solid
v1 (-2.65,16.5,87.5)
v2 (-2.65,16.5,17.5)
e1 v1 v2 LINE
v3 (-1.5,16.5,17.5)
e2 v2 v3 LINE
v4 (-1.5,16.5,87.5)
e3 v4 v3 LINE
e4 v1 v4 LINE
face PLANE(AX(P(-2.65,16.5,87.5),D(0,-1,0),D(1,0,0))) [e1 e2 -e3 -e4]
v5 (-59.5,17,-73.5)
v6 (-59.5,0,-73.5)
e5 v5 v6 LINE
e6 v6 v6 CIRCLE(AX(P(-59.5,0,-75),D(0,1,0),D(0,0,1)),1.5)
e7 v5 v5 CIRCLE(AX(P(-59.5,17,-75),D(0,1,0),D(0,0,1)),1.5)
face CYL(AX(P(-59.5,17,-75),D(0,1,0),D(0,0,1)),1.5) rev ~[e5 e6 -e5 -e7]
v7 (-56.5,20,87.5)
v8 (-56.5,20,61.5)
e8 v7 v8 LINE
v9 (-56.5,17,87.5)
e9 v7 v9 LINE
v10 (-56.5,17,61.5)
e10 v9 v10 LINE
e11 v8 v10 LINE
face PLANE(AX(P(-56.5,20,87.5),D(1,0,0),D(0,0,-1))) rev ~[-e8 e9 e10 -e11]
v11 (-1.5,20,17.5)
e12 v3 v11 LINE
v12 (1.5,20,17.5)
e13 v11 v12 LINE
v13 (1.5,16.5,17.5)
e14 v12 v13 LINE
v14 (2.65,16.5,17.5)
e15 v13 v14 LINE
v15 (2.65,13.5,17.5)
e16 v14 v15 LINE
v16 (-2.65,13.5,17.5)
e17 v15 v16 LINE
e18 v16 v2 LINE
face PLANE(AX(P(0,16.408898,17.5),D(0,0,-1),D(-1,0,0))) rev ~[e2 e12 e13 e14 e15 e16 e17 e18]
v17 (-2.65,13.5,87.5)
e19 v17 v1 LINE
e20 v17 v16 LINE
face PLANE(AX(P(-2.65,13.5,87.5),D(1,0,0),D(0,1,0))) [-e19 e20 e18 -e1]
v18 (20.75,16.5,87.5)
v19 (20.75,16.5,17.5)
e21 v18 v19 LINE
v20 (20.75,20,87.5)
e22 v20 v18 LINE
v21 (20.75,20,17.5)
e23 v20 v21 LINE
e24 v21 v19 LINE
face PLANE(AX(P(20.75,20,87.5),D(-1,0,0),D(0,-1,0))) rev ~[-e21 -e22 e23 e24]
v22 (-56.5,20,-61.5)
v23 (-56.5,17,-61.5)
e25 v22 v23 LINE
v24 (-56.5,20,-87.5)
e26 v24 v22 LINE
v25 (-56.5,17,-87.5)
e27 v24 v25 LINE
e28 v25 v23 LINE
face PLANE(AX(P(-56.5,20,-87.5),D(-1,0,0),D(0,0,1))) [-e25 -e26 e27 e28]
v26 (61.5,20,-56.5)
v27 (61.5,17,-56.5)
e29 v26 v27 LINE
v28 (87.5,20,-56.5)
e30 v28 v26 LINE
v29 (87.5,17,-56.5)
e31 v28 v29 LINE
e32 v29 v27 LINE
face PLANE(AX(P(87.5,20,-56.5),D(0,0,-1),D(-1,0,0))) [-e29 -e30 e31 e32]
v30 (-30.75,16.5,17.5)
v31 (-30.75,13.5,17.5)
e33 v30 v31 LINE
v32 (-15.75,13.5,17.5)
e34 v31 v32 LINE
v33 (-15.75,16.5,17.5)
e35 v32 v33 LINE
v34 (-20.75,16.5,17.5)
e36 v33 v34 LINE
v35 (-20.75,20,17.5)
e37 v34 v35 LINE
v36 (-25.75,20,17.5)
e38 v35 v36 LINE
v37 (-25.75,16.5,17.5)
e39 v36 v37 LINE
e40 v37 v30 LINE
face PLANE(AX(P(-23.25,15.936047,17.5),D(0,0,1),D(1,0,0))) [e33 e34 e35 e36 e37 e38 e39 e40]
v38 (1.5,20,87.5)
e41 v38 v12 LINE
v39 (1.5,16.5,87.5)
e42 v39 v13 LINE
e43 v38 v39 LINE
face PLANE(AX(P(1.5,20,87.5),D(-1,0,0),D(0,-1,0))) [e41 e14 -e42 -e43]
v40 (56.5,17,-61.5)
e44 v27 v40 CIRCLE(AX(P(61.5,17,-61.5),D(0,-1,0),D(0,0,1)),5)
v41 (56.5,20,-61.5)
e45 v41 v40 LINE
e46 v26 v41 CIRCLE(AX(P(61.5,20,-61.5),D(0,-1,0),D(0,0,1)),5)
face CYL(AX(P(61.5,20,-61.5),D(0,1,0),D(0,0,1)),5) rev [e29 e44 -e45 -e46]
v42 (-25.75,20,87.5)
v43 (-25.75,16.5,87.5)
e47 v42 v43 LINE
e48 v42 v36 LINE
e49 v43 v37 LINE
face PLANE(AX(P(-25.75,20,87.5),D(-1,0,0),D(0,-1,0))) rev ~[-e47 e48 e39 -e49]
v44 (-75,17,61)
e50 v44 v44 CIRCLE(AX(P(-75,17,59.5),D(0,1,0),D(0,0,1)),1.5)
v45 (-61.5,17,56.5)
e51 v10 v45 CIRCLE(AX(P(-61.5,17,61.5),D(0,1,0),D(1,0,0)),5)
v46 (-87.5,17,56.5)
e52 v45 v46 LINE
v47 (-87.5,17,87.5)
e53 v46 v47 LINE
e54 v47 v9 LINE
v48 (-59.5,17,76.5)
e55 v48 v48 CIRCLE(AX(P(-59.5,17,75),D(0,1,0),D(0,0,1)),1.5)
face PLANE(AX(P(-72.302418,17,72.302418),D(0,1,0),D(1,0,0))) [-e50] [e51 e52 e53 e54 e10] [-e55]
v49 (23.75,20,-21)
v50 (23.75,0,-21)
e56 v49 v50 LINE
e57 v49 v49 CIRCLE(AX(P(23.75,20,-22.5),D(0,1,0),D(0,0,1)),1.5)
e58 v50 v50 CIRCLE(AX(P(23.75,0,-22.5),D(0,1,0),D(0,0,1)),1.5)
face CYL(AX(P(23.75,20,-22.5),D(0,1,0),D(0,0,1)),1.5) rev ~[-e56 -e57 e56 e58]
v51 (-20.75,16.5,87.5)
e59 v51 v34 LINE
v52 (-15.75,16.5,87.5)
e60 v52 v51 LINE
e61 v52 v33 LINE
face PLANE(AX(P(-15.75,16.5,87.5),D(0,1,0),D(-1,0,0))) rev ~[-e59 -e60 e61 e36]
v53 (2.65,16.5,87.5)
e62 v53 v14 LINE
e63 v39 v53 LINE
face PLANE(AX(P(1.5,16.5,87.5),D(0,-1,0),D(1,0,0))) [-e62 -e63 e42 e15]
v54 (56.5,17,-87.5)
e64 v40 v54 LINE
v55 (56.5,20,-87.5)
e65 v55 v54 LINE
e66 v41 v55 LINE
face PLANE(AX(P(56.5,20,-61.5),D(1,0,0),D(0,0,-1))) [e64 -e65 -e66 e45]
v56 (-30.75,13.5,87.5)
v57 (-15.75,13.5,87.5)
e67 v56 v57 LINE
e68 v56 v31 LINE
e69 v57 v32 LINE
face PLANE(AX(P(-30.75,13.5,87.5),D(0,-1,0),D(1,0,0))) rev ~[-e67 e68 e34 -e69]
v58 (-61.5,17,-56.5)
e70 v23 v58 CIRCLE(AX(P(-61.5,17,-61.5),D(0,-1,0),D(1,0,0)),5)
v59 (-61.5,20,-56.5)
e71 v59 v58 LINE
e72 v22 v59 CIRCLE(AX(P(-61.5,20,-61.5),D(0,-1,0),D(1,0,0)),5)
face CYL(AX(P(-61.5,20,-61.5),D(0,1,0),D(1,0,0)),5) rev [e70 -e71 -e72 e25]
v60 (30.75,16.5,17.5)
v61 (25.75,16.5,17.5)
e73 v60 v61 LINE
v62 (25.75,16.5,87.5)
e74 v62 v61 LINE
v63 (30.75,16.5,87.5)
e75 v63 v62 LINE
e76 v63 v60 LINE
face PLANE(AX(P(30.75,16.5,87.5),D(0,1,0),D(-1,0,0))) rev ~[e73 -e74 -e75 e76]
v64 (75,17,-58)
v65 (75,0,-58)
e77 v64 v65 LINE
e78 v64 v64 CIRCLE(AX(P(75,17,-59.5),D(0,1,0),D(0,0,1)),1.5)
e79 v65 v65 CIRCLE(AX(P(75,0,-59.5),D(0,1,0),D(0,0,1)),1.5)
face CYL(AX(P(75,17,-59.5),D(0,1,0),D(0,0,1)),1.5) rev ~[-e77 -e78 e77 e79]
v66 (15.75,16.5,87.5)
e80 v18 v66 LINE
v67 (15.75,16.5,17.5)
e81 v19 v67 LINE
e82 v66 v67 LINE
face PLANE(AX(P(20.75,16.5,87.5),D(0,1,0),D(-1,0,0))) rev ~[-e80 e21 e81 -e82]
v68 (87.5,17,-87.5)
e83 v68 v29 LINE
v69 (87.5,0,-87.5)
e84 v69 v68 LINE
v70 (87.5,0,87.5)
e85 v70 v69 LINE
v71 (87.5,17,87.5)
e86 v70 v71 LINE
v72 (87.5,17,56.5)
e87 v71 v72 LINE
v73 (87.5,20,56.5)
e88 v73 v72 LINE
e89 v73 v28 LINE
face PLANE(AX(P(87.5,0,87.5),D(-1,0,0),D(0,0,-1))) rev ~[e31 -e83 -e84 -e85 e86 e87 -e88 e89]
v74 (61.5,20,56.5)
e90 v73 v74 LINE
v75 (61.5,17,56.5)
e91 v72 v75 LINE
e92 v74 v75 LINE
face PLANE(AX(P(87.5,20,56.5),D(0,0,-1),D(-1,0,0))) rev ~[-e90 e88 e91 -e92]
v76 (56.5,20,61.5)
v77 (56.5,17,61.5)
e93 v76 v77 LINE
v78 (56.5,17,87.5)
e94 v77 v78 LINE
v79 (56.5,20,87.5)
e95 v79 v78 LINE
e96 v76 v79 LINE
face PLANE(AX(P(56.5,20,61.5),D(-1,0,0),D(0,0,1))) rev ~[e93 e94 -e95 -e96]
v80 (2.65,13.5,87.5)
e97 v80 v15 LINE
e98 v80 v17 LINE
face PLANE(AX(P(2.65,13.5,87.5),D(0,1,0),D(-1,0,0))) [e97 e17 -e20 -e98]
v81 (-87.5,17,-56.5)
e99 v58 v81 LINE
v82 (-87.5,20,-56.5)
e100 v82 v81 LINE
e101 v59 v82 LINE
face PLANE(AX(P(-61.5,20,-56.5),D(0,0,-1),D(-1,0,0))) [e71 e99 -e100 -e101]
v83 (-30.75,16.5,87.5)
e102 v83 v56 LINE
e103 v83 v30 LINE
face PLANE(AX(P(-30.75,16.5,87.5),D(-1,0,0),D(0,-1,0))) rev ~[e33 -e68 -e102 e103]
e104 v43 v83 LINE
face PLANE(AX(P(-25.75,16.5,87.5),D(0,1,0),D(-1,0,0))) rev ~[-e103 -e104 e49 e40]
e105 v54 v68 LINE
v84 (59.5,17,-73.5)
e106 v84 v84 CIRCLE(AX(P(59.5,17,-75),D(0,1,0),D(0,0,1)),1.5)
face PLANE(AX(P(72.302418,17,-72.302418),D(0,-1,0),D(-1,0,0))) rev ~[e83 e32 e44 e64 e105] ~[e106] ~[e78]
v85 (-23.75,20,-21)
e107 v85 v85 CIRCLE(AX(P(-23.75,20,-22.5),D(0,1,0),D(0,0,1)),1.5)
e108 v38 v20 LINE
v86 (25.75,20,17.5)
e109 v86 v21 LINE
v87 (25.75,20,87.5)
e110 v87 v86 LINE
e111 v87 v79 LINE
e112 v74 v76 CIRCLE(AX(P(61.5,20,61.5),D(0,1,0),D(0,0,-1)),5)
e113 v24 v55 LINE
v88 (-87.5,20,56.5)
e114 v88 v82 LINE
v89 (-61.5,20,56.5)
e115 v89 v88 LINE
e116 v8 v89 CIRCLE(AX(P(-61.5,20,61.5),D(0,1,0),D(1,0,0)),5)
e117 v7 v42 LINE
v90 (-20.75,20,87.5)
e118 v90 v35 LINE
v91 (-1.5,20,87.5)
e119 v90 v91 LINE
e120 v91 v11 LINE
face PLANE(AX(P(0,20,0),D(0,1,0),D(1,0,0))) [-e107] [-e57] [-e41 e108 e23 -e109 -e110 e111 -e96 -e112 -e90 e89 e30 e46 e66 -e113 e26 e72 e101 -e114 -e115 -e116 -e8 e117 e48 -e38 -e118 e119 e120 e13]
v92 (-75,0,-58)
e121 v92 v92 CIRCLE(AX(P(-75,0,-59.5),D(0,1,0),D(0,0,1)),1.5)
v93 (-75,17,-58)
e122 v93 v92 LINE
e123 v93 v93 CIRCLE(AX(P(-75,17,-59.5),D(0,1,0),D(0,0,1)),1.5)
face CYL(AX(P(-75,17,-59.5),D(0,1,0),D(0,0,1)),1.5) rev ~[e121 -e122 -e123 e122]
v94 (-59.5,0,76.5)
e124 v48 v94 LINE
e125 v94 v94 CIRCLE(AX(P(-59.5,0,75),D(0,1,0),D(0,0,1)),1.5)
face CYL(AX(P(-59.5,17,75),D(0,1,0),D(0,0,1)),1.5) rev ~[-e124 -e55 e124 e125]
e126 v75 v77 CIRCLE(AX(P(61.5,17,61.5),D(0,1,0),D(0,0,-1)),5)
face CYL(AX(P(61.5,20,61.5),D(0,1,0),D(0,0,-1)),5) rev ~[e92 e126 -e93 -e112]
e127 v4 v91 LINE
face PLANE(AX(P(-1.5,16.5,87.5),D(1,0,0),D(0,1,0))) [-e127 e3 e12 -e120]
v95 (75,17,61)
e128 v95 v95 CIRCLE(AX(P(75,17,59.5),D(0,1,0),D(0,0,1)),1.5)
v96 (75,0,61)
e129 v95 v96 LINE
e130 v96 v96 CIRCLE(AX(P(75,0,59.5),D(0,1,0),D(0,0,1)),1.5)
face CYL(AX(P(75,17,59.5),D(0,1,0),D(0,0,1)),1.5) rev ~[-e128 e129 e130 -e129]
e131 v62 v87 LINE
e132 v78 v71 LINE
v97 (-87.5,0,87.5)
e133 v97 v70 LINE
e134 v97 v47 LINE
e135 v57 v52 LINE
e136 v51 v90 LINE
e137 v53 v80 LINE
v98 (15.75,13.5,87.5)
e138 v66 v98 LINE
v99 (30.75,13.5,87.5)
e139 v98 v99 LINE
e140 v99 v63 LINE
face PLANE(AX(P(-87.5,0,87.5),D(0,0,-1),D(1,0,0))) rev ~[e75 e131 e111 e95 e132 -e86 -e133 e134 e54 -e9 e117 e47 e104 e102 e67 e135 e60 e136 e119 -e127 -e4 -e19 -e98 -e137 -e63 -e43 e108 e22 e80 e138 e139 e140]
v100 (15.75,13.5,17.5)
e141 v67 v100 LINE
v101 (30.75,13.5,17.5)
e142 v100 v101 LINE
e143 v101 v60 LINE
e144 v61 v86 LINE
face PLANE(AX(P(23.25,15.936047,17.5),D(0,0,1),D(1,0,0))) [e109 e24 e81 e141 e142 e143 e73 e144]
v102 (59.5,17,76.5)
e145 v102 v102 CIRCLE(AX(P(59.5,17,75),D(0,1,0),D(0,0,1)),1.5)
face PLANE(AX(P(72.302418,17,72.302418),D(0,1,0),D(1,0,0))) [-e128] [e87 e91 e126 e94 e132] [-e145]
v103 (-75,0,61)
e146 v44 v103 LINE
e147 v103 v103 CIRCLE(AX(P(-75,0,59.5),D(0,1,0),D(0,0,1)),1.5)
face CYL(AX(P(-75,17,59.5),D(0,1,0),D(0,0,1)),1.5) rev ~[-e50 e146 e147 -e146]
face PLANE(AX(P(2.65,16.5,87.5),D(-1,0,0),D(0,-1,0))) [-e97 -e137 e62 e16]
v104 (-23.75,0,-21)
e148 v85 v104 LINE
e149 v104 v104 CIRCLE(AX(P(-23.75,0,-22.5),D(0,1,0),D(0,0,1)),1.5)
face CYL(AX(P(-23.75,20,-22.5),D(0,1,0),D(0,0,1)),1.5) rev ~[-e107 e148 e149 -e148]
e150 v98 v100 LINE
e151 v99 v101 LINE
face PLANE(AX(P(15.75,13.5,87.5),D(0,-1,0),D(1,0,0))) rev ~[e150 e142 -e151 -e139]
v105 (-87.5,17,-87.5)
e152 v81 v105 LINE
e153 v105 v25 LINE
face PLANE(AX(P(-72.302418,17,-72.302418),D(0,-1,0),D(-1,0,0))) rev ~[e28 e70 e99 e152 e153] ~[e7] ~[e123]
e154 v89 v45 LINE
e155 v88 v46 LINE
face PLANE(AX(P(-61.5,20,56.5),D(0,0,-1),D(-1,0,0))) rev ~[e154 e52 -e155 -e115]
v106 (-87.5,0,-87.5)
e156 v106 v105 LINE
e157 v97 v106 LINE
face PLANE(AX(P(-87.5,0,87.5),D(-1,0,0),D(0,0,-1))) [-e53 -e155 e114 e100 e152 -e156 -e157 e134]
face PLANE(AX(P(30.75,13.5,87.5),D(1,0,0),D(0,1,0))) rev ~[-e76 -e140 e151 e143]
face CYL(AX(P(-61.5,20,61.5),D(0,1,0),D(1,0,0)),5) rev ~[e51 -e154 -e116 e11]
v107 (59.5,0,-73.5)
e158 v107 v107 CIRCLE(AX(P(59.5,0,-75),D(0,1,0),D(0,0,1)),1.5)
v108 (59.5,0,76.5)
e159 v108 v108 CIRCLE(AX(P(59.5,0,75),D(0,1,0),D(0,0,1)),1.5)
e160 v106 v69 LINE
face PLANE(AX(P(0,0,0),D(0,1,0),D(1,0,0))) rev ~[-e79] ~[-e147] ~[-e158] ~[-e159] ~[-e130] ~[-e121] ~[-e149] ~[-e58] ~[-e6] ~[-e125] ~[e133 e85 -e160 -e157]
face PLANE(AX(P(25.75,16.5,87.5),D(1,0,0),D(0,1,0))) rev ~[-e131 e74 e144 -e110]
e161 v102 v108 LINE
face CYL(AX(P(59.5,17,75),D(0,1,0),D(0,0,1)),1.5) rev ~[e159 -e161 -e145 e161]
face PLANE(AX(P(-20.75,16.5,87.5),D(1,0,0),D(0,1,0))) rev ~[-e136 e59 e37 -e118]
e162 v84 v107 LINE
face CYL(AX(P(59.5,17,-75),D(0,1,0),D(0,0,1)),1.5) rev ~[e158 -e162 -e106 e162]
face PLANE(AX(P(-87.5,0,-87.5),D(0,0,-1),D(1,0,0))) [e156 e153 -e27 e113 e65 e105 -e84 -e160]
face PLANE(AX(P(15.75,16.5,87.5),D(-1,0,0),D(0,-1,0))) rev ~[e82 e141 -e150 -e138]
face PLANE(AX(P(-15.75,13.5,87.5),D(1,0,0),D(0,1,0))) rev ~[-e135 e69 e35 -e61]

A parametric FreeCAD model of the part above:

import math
import FreeCAD as App
import Part
import Sketcher

V = App.Vector

doc = App.newDocument("Part")
body = doc.addObject("PartDesign::Body", "Body")

# Sketch on XZ plane
sketch1 = doc.addObject("Sketcher::SketchObject", "Sketch")
body.addObject(sketch1)
sketch1.AttachmentSupport = (doc.XZ_Plane, [""])
sketch1.MapMode = "FlatFace"
sketch1.addGeometry(Part.LineSegment(V(-87.5, -87.5, 0), V(-87.5, 87.5, 0)), False)
sketch1.addGeometry(Part.LineSegment(V(-87.5, 87.5, 0), V(87.5, 87.5, 0)), False)
sketch1.addGeometry(Part.LineSegment(V(87.5, 87.5, 0), V(87.5, -87.5, 0)), False)
sketch1.addGeometry(Part.LineSegment(V(87.5, -87.5, 0), V(-87.5, -87.5, 0)), False)
sketch1.addConstraint(Sketcher.Constraint("Coincident", 0, 2, 1, 1))
sketch1.addConstraint(Sketcher.Constraint("Coincident", 1, 2, 2, 1))
sketch1.addConstraint(Sketcher.Constraint("Coincident", 2, 2, 3, 1))
sketch1.addConstraint(Sketcher.Constraint("Coincident", 3, 2, 0, 1))
sketch1.addConstraint(Sketcher.Constraint("Vertical", 0))
sketch1.addConstraint(Sketcher.Constraint("Horizontal", 1))
sketch1.addConstraint(Sketcher.Constraint("Vertical", 2))
sketch1.addConstraint(Sketcher.Constraint("Horizontal", 3))
sketch1.addConstraint(Sketcher.Constraint("Symmetric", 0, 2, 2, 2, -1, 1))
sketch1.addConstraint(Sketcher.Constraint("Equal", 3, 0))
sketch1.addConstraint(Sketcher.Constraint("DistanceX", 1, 1, 1, 2, 175.0))
pad1 = doc.addObject("PartDesign::Pad", "Pad")
body.addObject(pad1)
pad1.Profile = sketch1
pad1.Length = 20
pad1.Reversed = True

# Sketch on XZ plane
sketch2 = doc.addObject("Sketcher::SketchObject", "Sketch001")
body.addObject(sketch2)
sketch2.AttachmentSupport = (doc.XZ_Plane, [""])
sketch2.MapMode = "FlatFace"
sketch2.AttachmentOffset = App.Placement(V(0, 0, -20), App.Rotation())
sketch2.addGeometry(Part.LineSegment(V(-56.5, -87.5, 0), V(-87.5, -87.5, 0)), False)
sketch2.addGeometry(Part.LineSegment(V(-87.5, -87.5, 0), V(-87.5, -56.5, 0)), False)
sketch2.addGeometry(Part.LineSegment(V(-87.5, -56.5, 0), V(-61.5, -56.5, 0)), False)
sketch2.addGeometry(Part.ArcOfCircle(Part.Circle(V(-61.5, -61.5, 0), V(0, 0, 1), 5), math.radians(0), math.radians(90)), False)
sketch2.addGeometry(Part.LineSegment(V(-56.5, -61.5, 0), V(-56.5, -87.5, 0)), False)
sketch2.addGeometry(Part.LineSegment(V(61.5, -56.5, 0), V(87.5, -56.5, 0)), False)
sketch2.addGeometry(Part.LineSegment(V(87.5, -56.5, 0), V(87.5, -87.5, 0)), False)
sketch2.addGeometry(Part.LineSegment(V(87.5, -87.5, 0), V(56.5, -87.5, 0)), False)
sketch2.addGeometry(Part.LineSegment(V(56.5, -87.5, 0), V(56.5, -61.5, 0)), False)
sketch2.addGeometry(Part.ArcOfCircle(Part.Circle(V(61.5, -61.5, 0), V(0, 0, 1), 5), math.radians(90), math.radians(180)), False)
sketch2.addGeometry(Part.LineSegment(V(87.5, 87.5, 0), V(87.5, 56.5, 0)), False)
sketch2.addGeometry(Part.LineSegment(V(87.5, 56.5, 0), V(61.5, 56.5, 0)), False)
sketch2.addGeometry(Part.ArcOfCircle(Part.Circle(V(61.5, 61.5, 0), V(0, 0, 1), 5), math.radians(180), math.radians(270)), False)
sketch2.addGeometry(Part.LineSegment(V(56.5, 61.5, 0), V(56.5, 87.5, 0)), False)
sketch2.addGeometry(Part.LineSegment(V(56.5, 87.5, 0), V(87.5, 87.5, 0)), False)
sketch2.addGeometry(Part.LineSegment(V(-56.5, 87.5, 0), V(-56.5, 61.5, 0)), False)
sketch2.addGeometry(Part.ArcOfCircle(Part.Circle(V(-61.5, 61.5, 0), V(0, 0, 1), 5), math.radians(-90), math.radians(0)), False)
sketch2.addGeometry(Part.LineSegment(V(-61.5, 56.5, 0), V(-87.5, 56.5, 0)), False)
sketch2.addGeometry(Part.LineSegment(V(-87.5, 56.5, 0), V(-87.5, 87.5, 0)), False)
sketch2.addGeometry(Part.LineSegment(V(-87.5, 87.5, 0), V(-56.5, 87.5, 0)), False)
sketch2.addConstraint(Sketcher.Constraint("Coincident", 0, 2, 1, 1))
sketch2.addConstraint(Sketcher.Constraint("Coincident", 1, 2, 2, 1))
sketch2.addConstraint(Sketcher.Constraint("Tangent", 2, 2, 3, 2))
sketch2.addConstraint(Sketcher.Constraint("Tangent", 3, 1, 4, 1))
sketch2.addConstraint(Sketcher.Constraint("Coincident", 4, 2, 0, 1))
sketch2.addConstraint(Sketcher.Constraint("Coincident", 5, 2, 6, 1))
sketch2.addConstraint(Sketcher.Constraint("Coincident", 6, 2, 7, 1))
sketch2.addConstraint(Sketcher.Constraint("Coincident", 7, 2, 8, 1))
sketch2.addConstraint(Sketcher.Constraint("Tangent", 8, 2, 9, 2))
sketch2.addConstraint(Sketcher.Constraint("Tangent", 9, 1, 5, 1))
sketch2.addConstraint(Sketcher.Constraint("Coincident", 10, 2, 11, 1))
sketch2.addConstraint(Sketcher.Constraint("Tangent", 11, 2, 12, 2))
sketch2.addConstraint(Sketcher.Constraint("Tangent", 12, 1, 13, 1))
sketch2.addConstraint(Sketcher.Constraint("Coincident", 13, 2, 14, 1))
sketch2.addConstraint(Sketcher.Constraint("Coincident", 14, 2, 10, 1))
sketch2.addConstraint(Sketcher.Constraint("Tangent", 15, 2, 16, 2))
sketch2.addConstraint(Sketcher.Constraint("Tangent", 16, 1, 17, 1))
sketch2.addConstraint(Sketcher.Constraint("Coincident", 17, 2, 18, 1))
sketch2.addConstraint(Sketcher.Constraint("Coincident", 18, 2, 19, 1))
sketch2.addConstraint(Sketcher.Constraint("Coincident", 19, 2, 15, 1))
sketch2.addConstraint(Sketcher.Constraint("Horizontal", 0))
sketch2.addConstraint(Sketcher.Constraint("Vertical", 1))
sketch2.addConstraint(Sketcher.Constraint("Horizontal", 2))
sketch2.addConstraint(Sketcher.Constraint("Vertical", 4))
sketch2.addConstraint(Sketcher.Constraint("Horizontal", 5))
sketch2.addConstraint(Sketcher.Constraint("Vertical", 6))
sketch2.addConstraint(Sketcher.Constraint("Horizontal", 7))
sketch2.addConstraint(Sketcher.Constraint("Vertical", 8))
sketch2.addConstraint(Sketcher.Constraint("Vertical", 10))
sketch2.addConstraint(Sketcher.Constraint("Horizontal", 11))
sketch2.addConstraint(Sketcher.Constraint("Vertical", 13))
sketch2.addConstraint(Sketcher.Constraint("Horizontal", 14))
sketch2.addConstraint(Sketcher.Constraint("Vertical", 15))
sketch2.addConstraint(Sketcher.Constraint("Horizontal", 17))
sketch2.addConstraint(Sketcher.Constraint("Vertical", 18))
sketch2.addConstraint(Sketcher.Constraint("Horizontal", 19))
sketch2.addConstraint(Sketcher.Constraint("Equal", 3, 9))
sketch2.addConstraint(Sketcher.Constraint("Equal", 9, 12))
sketch2.addConstraint(Sketcher.Constraint("Equal", 12, 16))
sketch2.addConstraint(Sketcher.Constraint("Symmetric", 3, 3, 12, 3, -1, 1))
sketch2.addConstraint(Sketcher.Constraint("Symmetric", 9, 3, 16, 3, -1, 1))
sketch2.addConstraint(Sketcher.Constraint("Symmetric", 0, 2, 14, 2, -1, 1))
sketch2.addConstraint(Sketcher.Constraint("Symmetric", 6, 2, 18, 2, -1, 1))
sketch2.addConstraint(Sketcher.Constraint("Symmetric", 3, 3, 9, 3, -2))
sketch2.addConstraint(Sketcher.Constraint("Symmetric", 0, 2, 6, 2, -2))
sketch2.addConstraint(Sketcher.Constraint("Equal", 19, 1))
sketch2.addConstraint(Sketcher.Constraint("Radius", 3, 5.0))
sketch2.addConstraint(Sketcher.Constraint("DistanceX", 0, 2, 0, 1, 31.0))
sketch2.addConstraint(Sketcher.Constraint("DistanceX", 3, 3, 9, 3, 123.0))
sketch2.addConstraint(Sketcher.Constraint("DistanceY", 9, 3, 12, 3, 123.0))
pocket1 = doc.addObject("PartDesign::Pocket", "Pocket")
body.addObject(pocket1)
pocket1.Profile = sketch2
pocket1.Length = 3
pocket1.Reversed = True

# Sketch on XZ plane
sketch3 = doc.addObject("Sketcher::SketchObject", "Sketch002")
body.addObject(sketch3)
sketch3.AttachmentSupport = (doc.XZ_Plane, [""])
sketch3.MapMode = "FlatFace"
sketch3.AttachmentOffset = App.Placement(V(0, 0, -17), App.Rotation())
sketch3.addGeometry(Part.Circle(V(-75, 59.5, 0), V(0, 0, 1), 1.5), False)
sketch3.addConstraint(Sketcher.Constraint("Diameter", 0, 3.0))
sketch3.addConstraint(Sketcher.Constraint("DistanceX", 0, 3, -1, 1, 75.0))
sketch3.addConstraint(Sketcher.Constraint("DistanceY", -1, 1, 0, 3, 59.5))
pocket2 = doc.addObject("PartDesign::Pocket", "Pocket001")
body.addObject(pocket2)
pocket2.Profile = sketch3
pocket2.Type = "UpToFirst"
pocket2.Reversed = True

# Sketch on XZ plane
sketch4 = doc.addObject("Sketcher::SketchObject", "Sketch003")
body.addObject(sketch4)
sketch4.AttachmentSupport = (doc.XZ_Plane, [""])
sketch4.MapMode = "FlatFace"
sketch4.AttachmentOffset = App.Placement(V(0, 0, -17), App.Rotation())
sketch4.addGeometry(Part.Circle(V(-59.5, 75, 0), V(0, 0, 1), 1.5), False)
sketch4.addConstraint(Sketcher.Constraint("Diameter", 0, 3.0))
sketch4.addConstraint(Sketcher.Constraint("DistanceY", -1, 1, 0, 3, 75.0))
sketch4.addConstraint(Sketcher.Constraint("DistanceX", 0, 3, -1, 1, 59.5))
pocket3 = doc.addObject("PartDesign::Pocket", "Pocket002")
body.addObject(pocket3)
pocket3.Profile = sketch4
pocket3.Type = "UpToFirst"
pocket3.Reversed = True

# Sketch on XZ plane
sketch5 = doc.addObject("Sketcher::SketchObject", "Sketch004")
body.addObject(sketch5)
sketch5.AttachmentSupport = (doc.XZ_Plane, [""])
sketch5.MapMode = "FlatFace"
sketch5.AttachmentOffset = App.Placement(V(0, 0, -17), App.Rotation())
sketch5.addGeometry(Part.Circle(V(59.5, 75, 0), V(0, 0, 1), 1.5), False)
sketch5.addConstraint(Sketcher.Constraint("Diameter", 0, 3.0))
sketch5.addConstraint(Sketcher.Constraint("DistanceY", -1, 1, 0, 3, 75.0))
sketch5.addConstraint(Sketcher.Constraint("DistanceX", -1, 1, 0, 3, 59.5))
pocket4 = doc.addObject("PartDesign::Pocket", "Pocket003")
body.addObject(pocket4)
pocket4.Profile = sketch5
pocket4.Type = "UpToFirst"
pocket4.Reversed = True

# Sketch on XZ plane
sketch6 = doc.addObject("Sketcher::SketchObject", "Sketch005")
body.addObject(sketch6)
sketch6.AttachmentSupport = (doc.XZ_Plane, [""])
sketch6.MapMode = "FlatFace"
sketch6.AttachmentOffset = App.Placement(V(0, 0, -17), App.Rotation())
sketch6.addGeometry(Part.Circle(V(75, 59.5, 0), V(0, 0, 1), 1.5), False)
sketch6.addConstraint(Sketcher.Constraint("Diameter", 0, 3.0))
sketch6.addConstraint(Sketcher.Constraint("DistanceX", -1, 1, 0, 3, 75.0))
sketch6.addConstraint(Sketcher.Constraint("DistanceY", -1, 1, 0, 3, 59.5))
pocket5 = doc.addObject("PartDesign::Pocket", "Pocket004")
body.addObject(pocket5)
pocket5.Profile = sketch6
pocket5.Type = "UpToFirst"
pocket5.Reversed = True

# Sketch on XZ plane
sketch7 = doc.addObject("Sketcher::SketchObject", "Sketch006")
body.addObject(sketch7)
sketch7.AttachmentSupport = (doc.XZ_Plane, [""])
sketch7.MapMode = "FlatFace"
sketch7.AttachmentOffset = App.Placement(V(0, 0, -17), App.Rotation())
sketch7.addGeometry(Part.Circle(V(59.5, -75, 0), V(0, 0, 1), 1.5), False)
sketch7.addConstraint(Sketcher.Constraint("Diameter", 0, 3.0))
sketch7.addConstraint(Sketcher.Constraint("DistanceY", 0, 3, -1, 1, 75.0))
sketch7.addConstraint(Sketcher.Constraint("DistanceX", -1, 1, 0, 3, 59.5))
pocket6 = doc.addObject("PartDesign::Pocket", "Pocket005")
body.addObject(pocket6)
pocket6.Profile = sketch7
pocket6.Type = "UpToFirst"
pocket6.Reversed = True

# Sketch on XZ plane
sketch8 = doc.addObject("Sketcher::SketchObject", "Sketch007")
body.addObject(sketch8)
sketch8.AttachmentSupport = (doc.XZ_Plane, [""])
sketch8.MapMode = "FlatFace"
sketch8.AttachmentOffset = App.Placement(V(0, 0, -17), App.Rotation())
sketch8.addGeometry(Part.Circle(V(75, -59.5, 0), V(0, 0, 1), 1.5), False)
sketch8.addConstraint(Sketcher.Constraint("Diameter", 0, 3.0))
sketch8.addConstraint(Sketcher.Constraint("DistanceX", -1, 1, 0, 3, 75.0))
sketch8.addConstraint(Sketcher.Constraint("DistanceY", 0, 3, -1, 1, 59.5))
pocket7 = doc.addObject("PartDesign::Pocket", "Pocket006")
body.addObject(pocket7)
pocket7.Profile = sketch8
pocket7.Type = "UpToFirst"
pocket7.Reversed = True

# Sketch on XZ plane
sketch9 = doc.addObject("Sketcher::SketchObject", "Sketch008")
body.addObject(sketch9)
sketch9.AttachmentSupport = (doc.XZ_Plane, [""])
sketch9.MapMode = "FlatFace"
sketch9.AttachmentOffset = App.Placement(V(0, 0, -17), App.Rotation())
sketch9.addGeometry(Part.Circle(V(-59.5, -75, 0), V(0, 0, 1), 1.5), False)
sketch9.addConstraint(Sketcher.Constraint("Diameter", 0, 3.0))
sketch9.addConstraint(Sketcher.Constraint("DistanceY", 0, 3, -1, 1, 75.0))
sketch9.addConstraint(Sketcher.Constraint("DistanceX", 0, 3, -1, 1, 59.5))
pocket8 = doc.addObject("PartDesign::Pocket", "Pocket007")
body.addObject(pocket8)
pocket8.Profile = sketch9
pocket8.Type = "UpToFirst"
pocket8.Reversed = True

# Sketch on XZ plane
sketch10 = doc.addObject("Sketcher::SketchObject", "Sketch009")
body.addObject(sketch10)
sketch10.AttachmentSupport = (doc.XZ_Plane, [""])
sketch10.MapMode = "FlatFace"
sketch10.AttachmentOffset = App.Placement(V(0, 0, -17), App.Rotation())
sketch10.addGeometry(Part.Circle(V(-75, -59.5, 0), V(0, 0, 1), 1.5), False)
sketch10.addConstraint(Sketcher.Constraint("Diameter", 0, 3.0))
sketch10.addConstraint(Sketcher.Constraint("DistanceX", 0, 3, -1, 1, 75.0))
sketch10.addConstraint(Sketcher.Constraint("DistanceY", 0, 3, -1, 1, 59.5))
pocket9 = doc.addObject("PartDesign::Pocket", "Pocket008")
body.addObject(pocket9)
pocket9.Profile = sketch10
pocket9.Type = "UpToFirst"
pocket9.Reversed = True

# Sketch on XY plane
sketch11 = doc.addObject("Sketcher::SketchObject", "Sketch010")
body.addObject(sketch11)
sketch11.AttachmentSupport = (doc.XY_Plane, [""])
sketch11.MapMode = "FlatFace"
sketch11.AttachmentOffset = App.Placement(V(0, 0, 87.5), App.Rotation())
sketch11.addGeometry(Part.LineSegment(V(-20.75, 20, 0), V(-25.75, 20, 0)), False)
sketch11.addGeometry(Part.LineSegment(V(-25.75, 20, 0), V(-25.75, 16.5, 0)), False)
sketch11.addGeometry(Part.LineSegment(V(-25.75, 16.5, 0), V(-30.75, 16.5, 0)), False)
sketch11.addGeometry(Part.LineSegment(V(-30.75, 16.5, 0), V(-30.75, 13.5, 0)), False)
sketch11.addGeometry(Part.LineSegment(V(-30.75, 13.5, 0), V(-15.75, 13.5, 0)), False)
sketch11.addGeometry(Part.LineSegment(V(-15.75, 13.5, 0), V(-15.75, 16.5, 0)), False)
sketch11.addGeometry(Part.LineSegment(V(-15.75, 16.5, 0), V(-20.75, 16.5, 0)), False)
sketch11.addGeometry(Part.LineSegment(V(-20.75, 16.5, 0), V(-20.75, 20, 0)), False)
sketch11.addGeometry(Part.LineSegment(V(25.75, 16.5, 0), V(25.75, 20, 0)), False)
sketch11.addGeometry(Part.LineSegment(V(25.75, 20, 0), V(20.75, 20, 0)), False)
sketch11.addGeometry(Part.LineSegment(V(20.75, 20, 0), V(20.75, 16.5, 0)), False)
sketch11.addGeometry(Part.LineSegment(V(20.75, 16.5, 0), V(15.75, 16.5, 0)), False)
sketch11.addGeometry(Part.LineSegment(V(15.75, 16.5, 0), V(15.75, 13.5, 0)), False)
sketch11.addGeometry(Part.LineSegment(V(15.75, 13.5, 0), V(30.75, 13.5, 0)), False)
sketch11.addGeometry(Part.LineSegment(V(30.75, 13.5, 0), V(30.75, 16.5, 0)), False)
sketch11.addGeometry(Part.LineSegment(V(30.75, 16.5, 0), V(25.75, 16.5, 0)), False)
sketch11.addGeometry(Part.LineSegment(V(-1.5, 16.5, 0), V(-2.65, 16.5, 0)), False)
sketch11.addGeometry(Part.LineSegment(V(-2.65, 16.5, 0), V(-2.65, 13.5, 0)), False)
sketch11.addGeometry(Part.LineSegment(V(-2.65, 13.5, 0), V(2.65, 13.5, 0)), False)
sketch11.addGeometry(Part.LineSegment(V(2.65, 13.5, 0), V(2.65, 16.5, 0)), False)
sketch11.addGeometry(Part.LineSegment(V(2.65, 16.5, 0), V(1.5, 16.5, 0)), False)
sketch11.addGeometry(Part.LineSegment(V(1.5, 16.5, 0), V(1.5, 20, 0)), False)
sketch11.addGeometry(Part.LineSegment(V(1.5, 20, 0), V(-1.5, 20, 0)), False)
sketch11.addGeometry(Part.LineSegment(V(-1.5, 20, 0), V(-1.5, 16.5, 0)), False)
sketch11.addConstraint(Sketcher.Constraint("Coincident", 0, 2, 1, 1))
sketch11.addConstraint(Sketcher.Constraint("Coincident", 1, 2, 2, 1))
sketch11.addConstraint(Sketcher.Constraint("Coincident", 2, 2, 3, 1))
sketch11.addConstraint(Sketcher.Constraint("Coincident", 3, 2, 4, 1))
sketch11.addConstraint(Sketcher.Constraint("Coincident", 4, 2, 5, 1))
sketch11.addConstraint(Sketcher.Constraint("Coincident", 5, 2, 6, 1))
sketch11.addConstraint(Sketcher.Constraint("Coincident", 6, 2, 7, 1))
sketch11.addConstraint(Sketcher.Constraint("Coincident", 7, 2, 0, 1))
sketch11.addConstraint(Sketcher.Constraint("Coincident", 8, 2, 9, 1))
sketch11.addConstraint(Sketcher.Constraint("Coincident", 9, 2, 10, 1))
sketch11.addConstraint(Sketcher.Constraint("Coincident", 10, 2, 11, 1))
sketch11.addConstraint(Sketcher.Constraint("Coincident", 11, 2, 12, 1))
sketch11.addConstraint(Sketcher.Constraint("Coincident", 12, 2, 13, 1))
sketch11.addConstraint(Sketcher.Constraint("Coincident", 13, 2, 14, 1))
sketch11.addConstraint(Sketcher.Constraint("Coincident", 14, 2, 15, 1))
sketch11.addConstraint(Sketcher.Constraint("Coincident", 15, 2, 8, 1))
sketch11.addConstraint(Sketcher.Constraint("Coincident", 16, 2, 17, 1))
sketch11.addConstraint(Sketcher.Constraint("Coincident", 17, 2, 18, 1))
sketch11.addConstraint(Sketcher.Constraint("Coincident", 18, 2, 19, 1))
sketch11.addConstraint(Sketcher.Constraint("Coincident", 19, 2, 20, 1))
sketch11.addConstraint(Sketcher.Constraint("Coincident", 20, 2, 21, 1))
sketch11.addConstraint(Sketcher.Constraint("Coincident", 21, 2, 22, 1))
sketch11.addConstraint(Sketcher.Constraint("Coincident", 22, 2, 23, 1))
sketch11.addConstraint(Sketcher.Constraint("Coincident", 23, 2, 16, 1))
sketch11.addConstraint(Sketcher.Constraint("Horizontal", 0))
sketch11.addConstraint(Sketcher.Constraint("Vertical", 1))
sketch11.addConstraint(Sketcher.Constraint("Horizontal", 2))
sketch11.addConstraint(Sketcher.Constraint("Vertical", 3))
sketch11.addConstraint(Sketcher.Constraint("Horizontal", 4))
sketch11.addConstraint(Sketcher.Constraint("Vertical", 5))
sketch11.addConstraint(Sketcher.Constraint("Horizontal", 6))
sketch11.addConstraint(Sketcher.Constraint("Vertical", 7))
sketch11.addConstraint(Sketcher.Constraint("Vertical", 8))
sketch11.addConstraint(Sketcher.Constraint("Horizontal", 9))
sketch11.addConstraint(Sketcher.Constraint("Vertical", 10))
sketch11.addConstraint(Sketcher.Constraint("Horizontal", 11))
sketch11.addConstraint(Sketcher.Constraint("Vertical", 12))
sketch11.addConstraint(Sketcher.Constraint("Horizontal", 13))
sketch11.addConstraint(Sketcher.Constraint("Vertical", 14))
sketch11.addConstraint(Sketcher.Constraint("Horizontal", 15))
sketch11.addConstraint(Sketcher.Constraint("Horizontal", 16))
sketch11.addConstraint(Sketcher.Constraint("Vertical", 17))
sketch11.addConstraint(Sketcher.Constraint("Horizontal", 18))
sketch11.addConstraint(Sketcher.Constraint("Vertical", 19))
sketch11.addConstraint(Sketcher.Constraint("Horizontal", 20))
sketch11.addConstraint(Sketcher.Constraint("Vertical", 21))
sketch11.addConstraint(Sketcher.Constraint("Horizontal", 22))
sketch11.addConstraint(Sketcher.Constraint("Vertical", 23))
sketch11.addConstraint(Sketcher.Constraint("Symmetric", 0, 2, 8, 2, -2))
sketch11.addConstraint(Sketcher.Constraint("Symmetric", 6, 2, 10, 2, -2))
sketch11.addConstraint(Sketcher.Constraint("Symmetric", 4, 2, 12, 2, -2))
sketch11.addConstraint(Sketcher.Constraint("Symmetric", 2, 2, 14, 2, -2))
sketch11.addConstraint(Sketcher.Constraint("Symmetric", 16, 2, 19, 2, -2))
sketch11.addConstraint(Sketcher.Constraint("Horizontal", 2, 2, 5, 2))
sketch11.addConstraint(Sketcher.Constraint("Horizontal", 15, 2, 16, 2))
sketch11.addConstraint(Sketcher.Constraint("Horizontal", 13, 2, 17, 2))
sketch11.addConstraint(Sketcher.Constraint("Horizontal", 9, 2, 21, 2))
sketch11.addConstraint(Sketcher.Constraint("Equal", 0, 2))
sketch11.addConstraint(Sketcher.Constraint("Equal", 2, 6))
sketch11.addConstraint(Sketcher.Constraint("Equal", 16, 20))
sketch11.addConstraint(Sketcher.Constraint("Equal", 22, 3))
sketch11.addConstraint(Sketcher.Constraint("DistanceX", 0, 2, 0, 1, 5.0))
sketch11.addConstraint(Sketcher.Constraint("DistanceX", 22, 2, 22, 1, 3.0))
sketch11.addConstraint(Sketcher.Constraint("DistanceX", 18, 1, 18, 2, 5.3))
sketch11.addConstraint(Sketcher.Constraint("DistanceY", 1, 2, 1, 1, 3.5))
sketch11.addConstraint(Sketcher.Constraint("DistanceY", -1, 1, 0, 2, 20.0))
sketch11.addConstraint(Sketcher.Constraint("DistanceX", 5, 2, 8, 2, 41.5))
pocket10 = doc.addObject("PartDesign::Pocket", "Pocket009")
body.addObject(pocket10)
pocket10.Profile = sketch11
pocket10.Length = 70

# Sketch on XZ plane
sketch12 = doc.addObject("Sketcher::SketchObject", "Sketch011")
body.addObject(sketch12)
sketch12.AttachmentSupport = (doc.XZ_Plane, [""])
sketch12.MapMode = "FlatFace"
sketch12.AttachmentOffset = App.Placement(V(0, 0, -20), App.Rotation())
sketch12.addGeometry(Part.Circle(V(-23.75, -22.5, 0), V(0, 0, 1), 1.5), False)
sketch12.addConstraint(Sketcher.Constraint("Diameter", 0, 3.0))
sketch12.addConstraint(Sketcher.Constraint("DistanceY", 0, 3, -1, 1, 22.5))
sketch12.addConstraint(Sketcher.Constraint("DistanceX", 0, 3, -1, 1, 23.75))
pocket11 = doc.addObject("PartDesign::Pocket", "Pocket010")
body.addObject(pocket11)
pocket11.Profile = sketch12
pocket11.Type = "UpToFirst"
pocket11.Reversed = True

# Sketch on XZ plane
sketch13 = doc.addObject("Sketcher::SketchObject", "Sketch012")
body.addObject(sketch13)
sketch13.AttachmentSupport = (doc.XZ_Plane, [""])
sketch13.MapMode = "FlatFace"
sketch13.AttachmentOffset = App.Placement(V(0, 0, -20), App.Rotation())
sketch13.addGeometry(Part.Circle(V(23.75, -22.5, 0), V(0, 0, 1), 1.5), False)
sketch13.addConstraint(Sketcher.Constraint("Diameter", 0, 3.0))
sketch13.addConstraint(Sketcher.Constraint("DistanceY", 0, 3, -1, 1, 22.5))
sketch13.addConstraint(Sketcher.Constraint("DistanceX", -1, 1, 0, 3, 23.75))
pocket12 = doc.addObject("PartDesign::Pocket", "Pocket011")
body.addObject(pocket12)
pocket12.Profile = sketch13
pocket12.Type = "UpToFirst"
pocket12.Reversed = True

doc.recompute()
